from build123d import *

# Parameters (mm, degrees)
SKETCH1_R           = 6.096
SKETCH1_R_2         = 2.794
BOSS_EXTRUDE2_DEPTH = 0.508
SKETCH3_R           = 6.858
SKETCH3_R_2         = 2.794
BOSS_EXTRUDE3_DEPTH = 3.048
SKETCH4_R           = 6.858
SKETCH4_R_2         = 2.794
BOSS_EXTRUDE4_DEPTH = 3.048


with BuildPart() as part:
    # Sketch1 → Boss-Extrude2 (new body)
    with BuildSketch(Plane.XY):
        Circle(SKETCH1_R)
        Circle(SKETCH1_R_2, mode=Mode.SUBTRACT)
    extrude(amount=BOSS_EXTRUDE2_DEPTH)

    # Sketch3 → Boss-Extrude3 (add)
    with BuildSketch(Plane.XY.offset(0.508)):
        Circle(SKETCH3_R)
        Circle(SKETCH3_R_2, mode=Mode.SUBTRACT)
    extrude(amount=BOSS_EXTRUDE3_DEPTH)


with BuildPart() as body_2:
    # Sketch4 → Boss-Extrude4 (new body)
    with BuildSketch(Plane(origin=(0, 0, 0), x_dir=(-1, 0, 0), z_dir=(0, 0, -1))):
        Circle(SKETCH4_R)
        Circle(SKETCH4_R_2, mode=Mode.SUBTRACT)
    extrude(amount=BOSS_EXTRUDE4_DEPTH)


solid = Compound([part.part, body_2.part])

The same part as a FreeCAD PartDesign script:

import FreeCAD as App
import Part
import Sketcher
Q = App.Units.Quantity

doc = App.newDocument("Part")
body = doc.addObject("PartDesign::Body", "Body")

# Sketch on XY plane
sketch1 = body.newObject("Sketcher::SketchObject", "Sketch")
sketch1.AttachmentSupport = (doc.getObject("XY_Plane"), [""])
sketch1.MapMode = "FlatFace"
sketch1.addGeometry([
    Part.Circle(App.Vector(0, 0, 0), App.Vector(0, 0, 1), 6.1),
    Part.Circle(App.Vector(0, 0, 0), App.Vector(0, 0, 1), 2.8),
], False)
sketch1.addConstraint([
    Sketcher.Constraint("Coincident", 0, 3, -1, 1),
    Sketcher.Constraint("Coincident", 1, 3, -1, 1),
    Sketcher.Constraint("Diameter", 0, Q("0.48 in")),
    Sketcher.Constraint("Diameter", 1, Q("0.22 in")),
])
pad1 = body.newObject("PartDesign::Pad", "Pad")
pad1.Profile = sketch1
pad1.Length = Q("0.02 in")

# Sketch on XY plane
sketch2 = body.newObject("Sketcher::SketchObject", "Sketch001")
sketch2.AttachmentSupport = (doc.getObject("XY_Plane"), [""])
sketch2.MapMode = "FlatFace"
sketch2.AttachmentOffset = App.Placement(App.Vector(0, 0, 0.02 * 25.4), App.Rotation())
sketch2.addGeometry([
    Part.Circle(App.Vector(0, 0, 0), App.Vector(0, 0, 1), 6.9),
    Part.Circle(App.Vector(0, 0, 0), App.Vector(0, 0, 1), 2.8),
], False)
sketch2.addConstraint([
    Sketcher.Constraint("Coincident", 0, 3, -1, 1),
    Sketcher.Constraint("Coincident", 1, 3, -1, 1),
    Sketcher.Constraint("Diameter", 0, Q("0.54 in")),
    Sketcher.Constraint("Diameter", 1, Q("0.22 in")),
])
pad2 = body.newObject("PartDesign::Pad", "Pad001")
pad2.Profile = sketch2
pad2.Length = Q("0.12 in")
body2 = doc.addObject("PartDesign::Body", "Body001")

# Sketch on XY plane
sketch3 = body2.newObject("Sketcher::SketchObject", "Sketch002")
sketch3.AttachmentSupport = (doc.getObject("XY_Plane001"), [""])
sketch3.MapMode = "FlatFace"
sketch3.addGeometry([
    Part.Circle(App.Vector(0, 0, 0), App.Vector(0, 0, 1), 6.9),
    Part.Circle(App.Vector(0, 0, 0), App.Vector(0, 0, 1), 2.8),
], False)
sketch3.addConstraint([
    Sketcher.Constraint("Coincident", 0, 3, -1, 1),
    Sketcher.Constraint("Coincident", 1, 3, -1, 1),
    Sketcher.Constraint("Diameter", 0, Q("0.54 in")),
    Sketcher.Constraint("Diameter", 1, Q("0.22 in")),
])
pad3 = body2.newObject("PartDesign::Pad", "Pad002")
pad3.Profile = sketch3
pad3.Length = Q("0.12 in")
pad3.Reversed = True

doc.recompute()
